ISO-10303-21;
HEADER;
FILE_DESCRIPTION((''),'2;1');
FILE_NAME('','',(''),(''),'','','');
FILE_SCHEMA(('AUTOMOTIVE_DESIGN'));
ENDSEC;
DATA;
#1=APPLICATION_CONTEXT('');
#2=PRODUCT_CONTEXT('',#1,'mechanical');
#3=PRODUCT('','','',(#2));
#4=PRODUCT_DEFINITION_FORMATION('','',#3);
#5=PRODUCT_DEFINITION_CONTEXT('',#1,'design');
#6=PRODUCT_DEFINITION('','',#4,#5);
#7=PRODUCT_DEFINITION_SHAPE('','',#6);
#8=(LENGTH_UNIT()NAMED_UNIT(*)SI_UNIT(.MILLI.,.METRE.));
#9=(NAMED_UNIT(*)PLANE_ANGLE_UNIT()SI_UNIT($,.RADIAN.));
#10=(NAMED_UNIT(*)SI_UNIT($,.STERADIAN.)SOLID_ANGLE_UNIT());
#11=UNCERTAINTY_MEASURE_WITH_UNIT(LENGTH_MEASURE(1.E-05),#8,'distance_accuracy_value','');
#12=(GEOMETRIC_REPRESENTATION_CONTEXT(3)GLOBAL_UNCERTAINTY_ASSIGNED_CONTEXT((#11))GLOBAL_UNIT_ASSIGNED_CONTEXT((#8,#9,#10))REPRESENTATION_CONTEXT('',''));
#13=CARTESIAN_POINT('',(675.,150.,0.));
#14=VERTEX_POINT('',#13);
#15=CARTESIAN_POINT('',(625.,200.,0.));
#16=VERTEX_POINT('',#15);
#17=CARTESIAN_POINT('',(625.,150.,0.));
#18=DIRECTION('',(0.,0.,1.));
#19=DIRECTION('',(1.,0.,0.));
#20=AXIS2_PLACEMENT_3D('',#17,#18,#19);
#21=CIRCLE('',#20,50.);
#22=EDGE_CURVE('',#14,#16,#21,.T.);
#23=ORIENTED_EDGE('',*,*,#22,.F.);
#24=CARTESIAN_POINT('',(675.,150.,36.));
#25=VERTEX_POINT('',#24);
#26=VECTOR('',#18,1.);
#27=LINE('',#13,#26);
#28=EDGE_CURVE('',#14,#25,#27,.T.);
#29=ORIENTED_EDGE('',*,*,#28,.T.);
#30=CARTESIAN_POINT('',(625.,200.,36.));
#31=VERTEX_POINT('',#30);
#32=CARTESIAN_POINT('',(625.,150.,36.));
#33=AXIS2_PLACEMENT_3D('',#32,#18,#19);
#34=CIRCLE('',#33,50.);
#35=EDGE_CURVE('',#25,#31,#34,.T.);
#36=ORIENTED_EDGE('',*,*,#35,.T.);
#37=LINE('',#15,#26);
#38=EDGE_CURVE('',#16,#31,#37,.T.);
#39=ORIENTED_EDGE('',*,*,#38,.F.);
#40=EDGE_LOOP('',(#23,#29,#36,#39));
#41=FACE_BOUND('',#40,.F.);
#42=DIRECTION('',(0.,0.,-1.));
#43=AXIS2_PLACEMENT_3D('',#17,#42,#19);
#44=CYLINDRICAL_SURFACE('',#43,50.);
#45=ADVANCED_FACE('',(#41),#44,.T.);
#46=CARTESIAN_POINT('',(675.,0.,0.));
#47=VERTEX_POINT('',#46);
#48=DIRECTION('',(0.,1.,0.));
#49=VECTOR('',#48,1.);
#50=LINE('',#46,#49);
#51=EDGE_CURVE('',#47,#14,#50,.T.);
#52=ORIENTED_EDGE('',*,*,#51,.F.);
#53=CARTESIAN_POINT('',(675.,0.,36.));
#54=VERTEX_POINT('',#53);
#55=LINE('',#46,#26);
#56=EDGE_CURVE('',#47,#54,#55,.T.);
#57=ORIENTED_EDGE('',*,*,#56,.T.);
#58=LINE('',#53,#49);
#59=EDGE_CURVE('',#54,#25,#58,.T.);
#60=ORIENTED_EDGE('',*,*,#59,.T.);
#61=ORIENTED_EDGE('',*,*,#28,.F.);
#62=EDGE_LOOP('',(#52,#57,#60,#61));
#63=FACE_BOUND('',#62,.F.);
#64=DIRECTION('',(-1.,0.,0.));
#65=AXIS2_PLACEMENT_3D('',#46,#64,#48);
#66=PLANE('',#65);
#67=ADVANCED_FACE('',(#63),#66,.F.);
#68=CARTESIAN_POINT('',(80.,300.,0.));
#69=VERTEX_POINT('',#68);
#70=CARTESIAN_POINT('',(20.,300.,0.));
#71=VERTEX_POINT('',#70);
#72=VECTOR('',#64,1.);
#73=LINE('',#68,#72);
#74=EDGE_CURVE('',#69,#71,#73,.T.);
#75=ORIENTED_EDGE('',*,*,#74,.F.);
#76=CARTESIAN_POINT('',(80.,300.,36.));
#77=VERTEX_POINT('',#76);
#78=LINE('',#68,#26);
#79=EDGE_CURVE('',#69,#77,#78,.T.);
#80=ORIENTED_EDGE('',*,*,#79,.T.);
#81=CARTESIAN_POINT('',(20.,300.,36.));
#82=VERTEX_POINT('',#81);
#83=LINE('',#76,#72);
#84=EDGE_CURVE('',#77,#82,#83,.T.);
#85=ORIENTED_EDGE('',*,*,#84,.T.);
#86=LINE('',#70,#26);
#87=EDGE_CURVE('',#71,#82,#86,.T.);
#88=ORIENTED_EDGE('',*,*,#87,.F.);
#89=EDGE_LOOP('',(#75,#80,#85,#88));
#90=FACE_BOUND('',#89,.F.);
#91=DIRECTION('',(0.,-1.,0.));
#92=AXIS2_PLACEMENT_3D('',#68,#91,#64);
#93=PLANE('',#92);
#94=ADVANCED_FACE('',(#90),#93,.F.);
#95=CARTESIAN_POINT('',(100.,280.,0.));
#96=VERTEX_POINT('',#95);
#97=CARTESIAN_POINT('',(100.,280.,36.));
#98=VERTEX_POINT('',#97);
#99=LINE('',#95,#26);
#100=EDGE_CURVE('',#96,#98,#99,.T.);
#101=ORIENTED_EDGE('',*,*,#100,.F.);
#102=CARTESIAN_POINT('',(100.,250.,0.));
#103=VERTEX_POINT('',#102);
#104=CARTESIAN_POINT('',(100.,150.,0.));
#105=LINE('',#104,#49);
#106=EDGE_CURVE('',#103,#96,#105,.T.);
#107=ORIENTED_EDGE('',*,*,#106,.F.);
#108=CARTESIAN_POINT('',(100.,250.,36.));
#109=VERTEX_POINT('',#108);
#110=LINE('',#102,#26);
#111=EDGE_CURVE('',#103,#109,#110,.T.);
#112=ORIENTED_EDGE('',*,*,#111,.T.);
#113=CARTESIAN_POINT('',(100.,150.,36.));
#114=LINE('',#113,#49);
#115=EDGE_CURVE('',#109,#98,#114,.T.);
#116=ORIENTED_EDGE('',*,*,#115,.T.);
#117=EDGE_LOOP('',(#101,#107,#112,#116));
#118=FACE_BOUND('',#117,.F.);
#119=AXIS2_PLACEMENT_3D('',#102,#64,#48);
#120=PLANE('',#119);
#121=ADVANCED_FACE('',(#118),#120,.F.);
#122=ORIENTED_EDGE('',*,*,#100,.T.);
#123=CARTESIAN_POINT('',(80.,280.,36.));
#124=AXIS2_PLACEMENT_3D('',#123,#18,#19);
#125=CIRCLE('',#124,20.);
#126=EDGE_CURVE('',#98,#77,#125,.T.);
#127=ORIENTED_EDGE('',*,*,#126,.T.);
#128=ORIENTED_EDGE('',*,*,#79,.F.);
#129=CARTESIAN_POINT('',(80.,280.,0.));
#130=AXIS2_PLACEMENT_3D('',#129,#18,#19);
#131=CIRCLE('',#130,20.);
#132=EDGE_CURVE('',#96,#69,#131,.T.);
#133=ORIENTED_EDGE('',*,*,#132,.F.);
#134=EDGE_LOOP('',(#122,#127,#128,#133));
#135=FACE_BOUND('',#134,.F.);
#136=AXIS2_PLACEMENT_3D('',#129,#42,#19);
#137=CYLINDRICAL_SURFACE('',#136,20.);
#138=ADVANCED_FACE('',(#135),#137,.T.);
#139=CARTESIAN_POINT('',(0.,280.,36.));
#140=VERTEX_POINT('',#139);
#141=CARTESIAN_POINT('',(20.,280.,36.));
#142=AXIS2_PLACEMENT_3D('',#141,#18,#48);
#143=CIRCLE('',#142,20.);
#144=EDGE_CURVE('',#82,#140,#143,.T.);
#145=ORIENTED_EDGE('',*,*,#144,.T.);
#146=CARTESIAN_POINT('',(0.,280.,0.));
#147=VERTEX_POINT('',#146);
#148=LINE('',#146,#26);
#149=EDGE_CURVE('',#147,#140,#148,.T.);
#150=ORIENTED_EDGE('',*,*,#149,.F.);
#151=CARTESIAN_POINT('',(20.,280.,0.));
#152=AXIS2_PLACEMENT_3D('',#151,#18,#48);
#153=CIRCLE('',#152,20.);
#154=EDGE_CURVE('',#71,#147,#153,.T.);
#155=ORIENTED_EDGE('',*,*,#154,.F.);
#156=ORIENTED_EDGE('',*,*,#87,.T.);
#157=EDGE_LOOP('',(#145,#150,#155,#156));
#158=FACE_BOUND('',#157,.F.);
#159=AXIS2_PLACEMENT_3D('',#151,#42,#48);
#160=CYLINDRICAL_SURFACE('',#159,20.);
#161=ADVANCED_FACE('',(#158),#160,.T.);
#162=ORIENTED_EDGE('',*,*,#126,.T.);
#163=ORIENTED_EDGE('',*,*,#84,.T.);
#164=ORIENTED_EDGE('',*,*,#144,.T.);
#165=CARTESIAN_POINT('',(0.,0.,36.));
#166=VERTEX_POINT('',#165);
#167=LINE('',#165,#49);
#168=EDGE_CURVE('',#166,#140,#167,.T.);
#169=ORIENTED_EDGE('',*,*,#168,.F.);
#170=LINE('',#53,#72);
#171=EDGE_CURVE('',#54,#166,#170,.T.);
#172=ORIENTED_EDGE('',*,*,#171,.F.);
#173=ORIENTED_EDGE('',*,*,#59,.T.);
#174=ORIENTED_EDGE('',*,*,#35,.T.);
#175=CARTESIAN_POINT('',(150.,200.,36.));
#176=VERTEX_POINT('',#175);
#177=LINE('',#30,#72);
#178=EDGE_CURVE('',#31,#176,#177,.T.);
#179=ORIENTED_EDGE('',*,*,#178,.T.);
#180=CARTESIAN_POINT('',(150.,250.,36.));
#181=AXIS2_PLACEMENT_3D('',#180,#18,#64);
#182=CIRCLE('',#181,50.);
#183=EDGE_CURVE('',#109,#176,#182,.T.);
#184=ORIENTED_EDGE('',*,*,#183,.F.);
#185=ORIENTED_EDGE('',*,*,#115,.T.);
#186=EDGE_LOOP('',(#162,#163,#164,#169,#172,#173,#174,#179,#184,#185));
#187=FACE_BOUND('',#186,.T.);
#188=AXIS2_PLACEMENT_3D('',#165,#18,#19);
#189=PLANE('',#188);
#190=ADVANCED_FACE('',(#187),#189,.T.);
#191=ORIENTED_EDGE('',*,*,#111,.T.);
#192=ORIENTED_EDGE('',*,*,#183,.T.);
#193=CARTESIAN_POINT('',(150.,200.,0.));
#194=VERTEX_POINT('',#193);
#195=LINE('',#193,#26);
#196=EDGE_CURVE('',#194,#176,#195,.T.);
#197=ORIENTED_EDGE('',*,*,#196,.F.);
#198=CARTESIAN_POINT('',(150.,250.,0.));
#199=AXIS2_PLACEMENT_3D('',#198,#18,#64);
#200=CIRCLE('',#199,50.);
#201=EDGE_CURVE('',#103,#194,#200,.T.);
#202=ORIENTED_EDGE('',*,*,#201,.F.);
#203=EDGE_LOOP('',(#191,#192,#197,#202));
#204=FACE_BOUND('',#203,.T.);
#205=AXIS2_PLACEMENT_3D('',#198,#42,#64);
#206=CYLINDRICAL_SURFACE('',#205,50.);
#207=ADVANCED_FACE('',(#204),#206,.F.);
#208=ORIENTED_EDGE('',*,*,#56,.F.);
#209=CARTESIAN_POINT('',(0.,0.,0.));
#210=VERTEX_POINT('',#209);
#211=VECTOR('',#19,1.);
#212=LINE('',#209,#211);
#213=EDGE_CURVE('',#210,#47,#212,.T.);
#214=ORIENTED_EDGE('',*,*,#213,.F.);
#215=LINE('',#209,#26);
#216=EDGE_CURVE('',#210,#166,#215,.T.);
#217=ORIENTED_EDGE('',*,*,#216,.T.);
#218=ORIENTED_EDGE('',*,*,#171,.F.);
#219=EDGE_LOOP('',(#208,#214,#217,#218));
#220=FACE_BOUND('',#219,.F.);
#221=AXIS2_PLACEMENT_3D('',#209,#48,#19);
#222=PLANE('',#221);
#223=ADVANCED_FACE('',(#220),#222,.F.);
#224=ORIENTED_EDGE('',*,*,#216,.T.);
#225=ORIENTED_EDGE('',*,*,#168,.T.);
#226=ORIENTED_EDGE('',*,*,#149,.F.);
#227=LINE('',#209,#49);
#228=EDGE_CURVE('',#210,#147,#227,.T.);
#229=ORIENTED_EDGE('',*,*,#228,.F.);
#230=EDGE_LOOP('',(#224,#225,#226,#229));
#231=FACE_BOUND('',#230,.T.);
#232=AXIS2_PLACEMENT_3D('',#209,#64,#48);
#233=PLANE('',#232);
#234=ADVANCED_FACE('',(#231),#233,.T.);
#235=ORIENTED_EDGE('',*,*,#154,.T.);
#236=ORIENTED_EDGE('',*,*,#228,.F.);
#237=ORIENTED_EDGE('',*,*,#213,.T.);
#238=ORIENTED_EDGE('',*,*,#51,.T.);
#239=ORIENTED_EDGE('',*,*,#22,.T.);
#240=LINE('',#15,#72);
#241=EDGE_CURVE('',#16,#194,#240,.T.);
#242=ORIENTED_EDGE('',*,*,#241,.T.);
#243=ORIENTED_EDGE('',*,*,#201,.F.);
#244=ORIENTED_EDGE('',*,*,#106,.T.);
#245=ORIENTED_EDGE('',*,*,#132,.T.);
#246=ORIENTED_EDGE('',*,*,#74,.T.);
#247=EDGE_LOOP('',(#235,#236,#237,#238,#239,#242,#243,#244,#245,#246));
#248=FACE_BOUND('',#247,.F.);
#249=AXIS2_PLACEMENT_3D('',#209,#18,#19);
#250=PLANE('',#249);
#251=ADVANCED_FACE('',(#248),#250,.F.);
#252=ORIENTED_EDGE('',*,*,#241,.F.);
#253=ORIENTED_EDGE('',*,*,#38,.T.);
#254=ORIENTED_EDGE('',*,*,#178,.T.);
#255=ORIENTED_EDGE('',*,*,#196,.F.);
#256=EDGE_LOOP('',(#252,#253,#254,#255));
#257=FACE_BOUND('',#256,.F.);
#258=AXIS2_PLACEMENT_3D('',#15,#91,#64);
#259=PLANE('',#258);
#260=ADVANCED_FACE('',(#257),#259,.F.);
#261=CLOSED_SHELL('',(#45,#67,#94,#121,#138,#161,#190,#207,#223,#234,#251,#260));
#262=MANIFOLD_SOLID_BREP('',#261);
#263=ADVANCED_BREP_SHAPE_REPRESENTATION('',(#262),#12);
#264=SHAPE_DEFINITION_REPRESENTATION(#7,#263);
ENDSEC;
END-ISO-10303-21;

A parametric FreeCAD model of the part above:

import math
import FreeCAD as App
import Part
import Sketcher

V = App.Vector
Q = App.Units.Quantity

doc = App.newDocument("Part")
body = doc.addObject("PartDesign::Body", "Body")

# Sketch on XY plane
sketch1 = body.newObject("Sketcher::SketchObject", "Sketch")
sketch1.AttachmentSupport = (doc.getObject("XY_Plane"), [""])
sketch1.MapMode = "FlatFace"
sketch1.addGeometry([
    Part.LineSegment(V(0, 280, 0), V(0, 0, 0)),  # 0
    Part.LineSegment(V(0, 0, 0), V(675, 0, 0)),  # 1
    Part.LineSegment(V(675, 0, 0), V(675, 150, 0)),  # 2
    Part.ArcOfCircle(Part.Circle(V(625, 150, 0), V(0, 0, 1), 50), math.radians(0), math.radians(90)),  # 3
    Part.LineSegment(V(625, 200, 0), V(150, 200, 0)),  # 4
    Part.ArcOfCircle(Part.Circle(V(150, 250, 0), V(0, 0, 1), 50), math.radians(180), math.radians(270)),  # 5
    Part.LineSegment(V(100, 250, 0), V(100, 280, 0)),  # 6
    Part.ArcOfCircle(Part.Circle(V(80, 280, 0), V(0, 0, 1), 20), math.radians(0), math.radians(90)),  # 7
    Part.LineSegment(V(80, 300, 0), V(20, 300, 0)),  # 8
    Part.ArcOfCircle(Part.Circle(V(20, 280, 0), V(0, 0, 1), 20), math.radians(90), math.radians(180)),  # 9
], False)
sketch1.addConstraint([
    Sketcher.Constraint("Coincident", 0, 2, 1, 1),
    Sketcher.Constraint("Coincident", 1, 2, 2, 1),
    Sketcher.Constraint("Tangent", 2, 2, 3, 1),
    Sketcher.Constraint("Tangent", 3, 2, 4, 1),
    Sketcher.Constraint("Tangent", 4, 2, 5, 2),
    Sketcher.Constraint("Tangent", 5, 1, 6, 1),
    Sketcher.Constraint("Tangent", 6, 2, 7, 1),
    Sketcher.Constraint("Tangent", 7, 2, 8, 1),
    Sketcher.Constraint("Tangent", 8, 2, 9, 1),
    Sketcher.Constraint("Tangent", 9, 2, 0, 1),
    Sketcher.Constraint("Vertical", 0),
    Sketcher.Constraint("Horizontal", 1),
    Sketcher.Constraint("Vertical", 2),
    Sketcher.Constraint("Horizontal", 4),
    Sketcher.Constraint("Vertical", 6),
    Sketcher.Constraint("Horizontal", 8),
    Sketcher.Constraint("Coincident", 0, 2, -1, 1),
    Sketcher.Constraint("Equal", 3, 5),
    Sketcher.Constraint("Equal", 7, 9),
    Sketcher.Constraint("Radius", 3, Q("50 mm")),
    Sketcher.Constraint("Radius", 7, Q("20 mm")),
    Sketcher.Constraint("DistanceY", 2, 1, 2, 2, Q("150 mm")),
    Sketcher.Constraint("DistanceX", -1, 1, 5, 3, Q("150 mm")),
    Sketcher.Constraint("DistanceY", -1, 1, 7, 2, Q("300 mm")),
    Sketcher.Constraint("DistanceX", 1, 1, 1, 2, Q("675 mm")),
])
pad1 = body.newObject("PartDesign::Pad", "Pad")
pad1.Profile = sketch1
pad1.Length = 36

doc.recompute()
